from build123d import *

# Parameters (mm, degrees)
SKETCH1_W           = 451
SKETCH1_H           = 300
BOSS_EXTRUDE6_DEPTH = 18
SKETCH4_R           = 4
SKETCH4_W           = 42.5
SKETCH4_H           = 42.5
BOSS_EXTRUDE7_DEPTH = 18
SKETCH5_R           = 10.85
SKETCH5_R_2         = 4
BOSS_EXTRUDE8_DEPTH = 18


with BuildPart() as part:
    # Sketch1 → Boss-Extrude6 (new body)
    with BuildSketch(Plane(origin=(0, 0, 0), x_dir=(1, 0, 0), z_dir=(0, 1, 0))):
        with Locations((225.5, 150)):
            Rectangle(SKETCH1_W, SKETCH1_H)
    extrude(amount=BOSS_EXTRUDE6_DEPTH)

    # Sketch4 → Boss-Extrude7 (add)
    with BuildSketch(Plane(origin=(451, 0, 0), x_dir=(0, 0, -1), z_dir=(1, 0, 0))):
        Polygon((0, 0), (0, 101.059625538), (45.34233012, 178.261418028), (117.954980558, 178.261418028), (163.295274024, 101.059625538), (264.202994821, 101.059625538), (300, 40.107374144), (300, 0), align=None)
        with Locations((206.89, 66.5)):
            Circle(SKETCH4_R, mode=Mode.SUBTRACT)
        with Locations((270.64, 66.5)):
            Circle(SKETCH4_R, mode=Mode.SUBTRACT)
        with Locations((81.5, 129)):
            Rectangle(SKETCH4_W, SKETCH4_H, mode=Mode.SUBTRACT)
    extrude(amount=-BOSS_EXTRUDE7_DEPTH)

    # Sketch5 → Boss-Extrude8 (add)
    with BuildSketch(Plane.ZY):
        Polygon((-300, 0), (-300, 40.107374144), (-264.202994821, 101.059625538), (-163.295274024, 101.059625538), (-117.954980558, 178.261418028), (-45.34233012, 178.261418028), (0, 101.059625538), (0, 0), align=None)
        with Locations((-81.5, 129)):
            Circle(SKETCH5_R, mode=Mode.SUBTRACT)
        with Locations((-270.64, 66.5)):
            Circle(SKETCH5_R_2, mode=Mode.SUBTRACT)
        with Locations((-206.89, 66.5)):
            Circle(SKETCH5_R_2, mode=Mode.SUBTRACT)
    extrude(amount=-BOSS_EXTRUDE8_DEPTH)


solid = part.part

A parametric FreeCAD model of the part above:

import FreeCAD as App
import Part
import Sketcher

V = App.Vector


def add_polygon(sketch, points):
    """Adds a closed chain of lines whose ends are joined by coincident constraints."""
    first, n = sketch.GeometryCount, len(points)
    for a, b in zip(points, points[1:] + points[:1]):
        sketch.addGeometry(Part.LineSegment(App.Vector(*a, 0), App.Vector(*b, 0)), False)
    for i in range(n):
        sketch.addConstraint(Sketcher.Constraint("Coincident", first + i, 2, first + (i + 1) % n, 1))

doc = App.newDocument("Part")
body = doc.addObject("PartDesign::Body", "Body")

sketch1 = doc.addObject("Sketcher::SketchObject", "Sketch")
body.addObject(sketch1)
sketch1.AttachmentSupport = (doc.XZ_Plane, [""])
sketch1.MapMode = "FlatFace"
add_polygon(sketch1, [(0, -300), (0, 0), (451, 0), (451, -300)])
sketch1.addConstraint([
    Sketcher.Constraint("Vertical", 0),
    Sketcher.Constraint("Horizontal", 1),
    Sketcher.Constraint("Vertical", 2),
    Sketcher.Constraint("Horizontal", 3),
    Sketcher.Constraint("Coincident", 0, 2, -1, 1),
    Sketcher.Constraint("DistanceX", 1, 1, 1, 2, 451.0),
    Sketcher.Constraint("DistanceY", 0, 1, 0, 2, 300.0),
])
pad1 = doc.addObject("PartDesign::Pad", "Pad")
body.addObject(pad1)
pad1.Profile = sketch1
pad1.Length = 18
pad1.Reversed = True

sketch2 = doc.addObject("Sketcher::SketchObject", "Sketch001")
body.addObject(sketch2)
sketch2.AttachmentSupport = (doc.YZ_Plane, [""])
sketch2.MapMode = "FlatFace"
sketch2.AttachmentOffset = App.Placement(V(0, 0, 451), App.Rotation())
add_polygon(sketch2, [(101.1, 0), (0, 0), (0, -300), (40.1, -300), (101.1, -264.2), (101.1, -163.3), (178.3, -118), (178.3, -45.3)])
sketch2.addGeometry(Part.Circle(V(66.5, -270.6, 0), V(0, 0, 1), 4), False)
sketch2.addGeometry(Part.Circle(V(66.5, -206.9, 0), V(0, 0, 1), 4), False)
add_polygon(sketch2, [(107.8, -60.2), (150.2, -60.2), (150.2, -102.8), (107.8, -102.8)])
sketch2.addConstraint([
    Sketcher.Constraint("Horizontal", 0),
    Sketcher.Constraint("Vertical", 1),
    Sketcher.Constraint("Horizontal", 2),
    Sketcher.Constraint("Vertical", 4),
    Sketcher.Constraint("Vertical", 6),
    Sketcher.Constraint("Horizontal", 10),
    Sketcher.Constraint("Vertical", 11),
    Sketcher.Constraint("Horizontal", 12),
    Sketcher.Constraint("Vertical", 13),
    Sketcher.Constraint("Coincident", 0, 2, -1, 1),
    Sketcher.Constraint("Equal", 8, 9),
    Sketcher.Constraint("Parallel", 3, 5),
    Sketcher.Constraint("Vertical", 8, 3, 9, 3),
    Sketcher.Constraint("Vertical", 4, 2, 7, 2),
    Sketcher.Constraint("Equal", 12, 11),
    Sketcher.Constraint("Diameter", 8, 8.0),
    Sketcher.Constraint("DistanceY", 1, 2, 1, 1, 300.0),
    Sketcher.Constraint("DistanceX", 10, 1, 10, 2, 42.5),
    Sketcher.Constraint("DistanceX", -1, 1, 8, 3, 66.5),
    Sketcher.Constraint("DistanceY", 8, 3, -1, 1, 270.64),
    Sketcher.Constraint("DistanceY", 9, 3, -1, 1, 206.89),
    Sketcher.Constraint("DistanceX", -1, 1, 10, 2, 150.25),
    Sketcher.Constraint("DistanceY", 10, 2, -1, 1, 60.25),
    Sketcher.Constraint("DistanceY", 4, 1, 4, 2, 100.907721),
    Sketcher.Constraint("DistanceY", 6, 1, 6, 2, 72.61265),
    Sketcher.Constraint("Distance", 3, 70.68665),
    Sketcher.Constraint("Distance", 5, 89.53133),
    Sketcher.Constraint("Distance", 7, 89.532361),
    Sketcher.Constraint("DistanceX", 0, 2, 0, 1, 101.059626),
])
pad2 = doc.addObject("PartDesign::Pad", "Pad001")
body.addObject(pad2)
pad2.Profile = sketch2
pad2.Length = 18
pad2.Reversed = True

sketch3 = doc.addObject("Sketcher::SketchObject", "Sketch002")
body.addObject(sketch3)
sketch3.AttachmentSupport = (doc.YZ_Plane, [""])
sketch3.MapMode = "FlatFace"
add_polygon(sketch3, [(40.1, -300), (0, -300), (0, 0), (101.1, 0), (178.3, -45.3), (178.3, -118), (101.1, -163.3), (101.1, -264.2)])
sketch3.addGeometry(Part.Circle(V(66.5, -206.9, 0), V(0, 0, 1), 4), False)
sketch3.addGeometry(Part.Circle(V(66.5, -270.6, 0), V(0, 0, 1), 4), False)
sketch3.addGeometry(Part.Circle(V(129, -81.5, 0), V(0, 0, 1), 10.8), False)
sketch3.addConstraint([
    Sketcher.Constraint("Horizontal", 0),
    Sketcher.Constraint("Vertical", 1),
    Sketcher.Constraint("Horizontal", 2),
    Sketcher.Constraint("Vertical", 4),
    Sketcher.Constraint("Vertical", 6),
    Sketcher.Constraint("Coincident", 1, 2, -1, 1),
    Sketcher.Constraint("Equal", 8, 9),
    Sketcher.Constraint("Parallel", 5, 7),
    Sketcher.Constraint("Vertical", 8, 3, 9, 3),
    Sketcher.Constraint("Vertical", 2, 2, 5, 2),
    Sketcher.Constraint("Diameter", 8, 8.0),
    Sketcher.Constraint("Diameter", 10, 21.7),
    Sketcher.Constraint("DistanceY", 1, 1, 1, 2, 300.0),
    Sketcher.Constraint("DistanceX", -1, 1, 10, 3, 129.0),
    Sketcher.Constraint("DistanceX", -1, 1, 8, 3, 66.5),
    Sketcher.Constraint("DistanceY", 10, 3, -1, 1, 81.5),
    Sketcher.Constraint("DistanceY", 8, 3, -1, 1, 206.89),
    Sketcher.Constraint("DistanceY", 9, 3, -1, 1, 270.64),
    Sketcher.Constraint("DistanceY", 4, 2, 4, 1, 72.61265),
    Sketcher.Constraint("DistanceY", 6, 2, 6, 1, 100.907721),
    Sketcher.Constraint("Distance", 3, 89.532361),
    Sketcher.Constraint("Distance", 5, 89.53133),
    Sketcher.Constraint("Distance", 7, 70.68665),
    Sketcher.Constraint("DistanceX", 0, 2, 0, 1, 40.107374),
])
pad3 = doc.addObject("PartDesign::Pad", "Pad002")
body.addObject(pad3)
pad3.Profile = sketch3
pad3.Length = 18

doc.recompute()
